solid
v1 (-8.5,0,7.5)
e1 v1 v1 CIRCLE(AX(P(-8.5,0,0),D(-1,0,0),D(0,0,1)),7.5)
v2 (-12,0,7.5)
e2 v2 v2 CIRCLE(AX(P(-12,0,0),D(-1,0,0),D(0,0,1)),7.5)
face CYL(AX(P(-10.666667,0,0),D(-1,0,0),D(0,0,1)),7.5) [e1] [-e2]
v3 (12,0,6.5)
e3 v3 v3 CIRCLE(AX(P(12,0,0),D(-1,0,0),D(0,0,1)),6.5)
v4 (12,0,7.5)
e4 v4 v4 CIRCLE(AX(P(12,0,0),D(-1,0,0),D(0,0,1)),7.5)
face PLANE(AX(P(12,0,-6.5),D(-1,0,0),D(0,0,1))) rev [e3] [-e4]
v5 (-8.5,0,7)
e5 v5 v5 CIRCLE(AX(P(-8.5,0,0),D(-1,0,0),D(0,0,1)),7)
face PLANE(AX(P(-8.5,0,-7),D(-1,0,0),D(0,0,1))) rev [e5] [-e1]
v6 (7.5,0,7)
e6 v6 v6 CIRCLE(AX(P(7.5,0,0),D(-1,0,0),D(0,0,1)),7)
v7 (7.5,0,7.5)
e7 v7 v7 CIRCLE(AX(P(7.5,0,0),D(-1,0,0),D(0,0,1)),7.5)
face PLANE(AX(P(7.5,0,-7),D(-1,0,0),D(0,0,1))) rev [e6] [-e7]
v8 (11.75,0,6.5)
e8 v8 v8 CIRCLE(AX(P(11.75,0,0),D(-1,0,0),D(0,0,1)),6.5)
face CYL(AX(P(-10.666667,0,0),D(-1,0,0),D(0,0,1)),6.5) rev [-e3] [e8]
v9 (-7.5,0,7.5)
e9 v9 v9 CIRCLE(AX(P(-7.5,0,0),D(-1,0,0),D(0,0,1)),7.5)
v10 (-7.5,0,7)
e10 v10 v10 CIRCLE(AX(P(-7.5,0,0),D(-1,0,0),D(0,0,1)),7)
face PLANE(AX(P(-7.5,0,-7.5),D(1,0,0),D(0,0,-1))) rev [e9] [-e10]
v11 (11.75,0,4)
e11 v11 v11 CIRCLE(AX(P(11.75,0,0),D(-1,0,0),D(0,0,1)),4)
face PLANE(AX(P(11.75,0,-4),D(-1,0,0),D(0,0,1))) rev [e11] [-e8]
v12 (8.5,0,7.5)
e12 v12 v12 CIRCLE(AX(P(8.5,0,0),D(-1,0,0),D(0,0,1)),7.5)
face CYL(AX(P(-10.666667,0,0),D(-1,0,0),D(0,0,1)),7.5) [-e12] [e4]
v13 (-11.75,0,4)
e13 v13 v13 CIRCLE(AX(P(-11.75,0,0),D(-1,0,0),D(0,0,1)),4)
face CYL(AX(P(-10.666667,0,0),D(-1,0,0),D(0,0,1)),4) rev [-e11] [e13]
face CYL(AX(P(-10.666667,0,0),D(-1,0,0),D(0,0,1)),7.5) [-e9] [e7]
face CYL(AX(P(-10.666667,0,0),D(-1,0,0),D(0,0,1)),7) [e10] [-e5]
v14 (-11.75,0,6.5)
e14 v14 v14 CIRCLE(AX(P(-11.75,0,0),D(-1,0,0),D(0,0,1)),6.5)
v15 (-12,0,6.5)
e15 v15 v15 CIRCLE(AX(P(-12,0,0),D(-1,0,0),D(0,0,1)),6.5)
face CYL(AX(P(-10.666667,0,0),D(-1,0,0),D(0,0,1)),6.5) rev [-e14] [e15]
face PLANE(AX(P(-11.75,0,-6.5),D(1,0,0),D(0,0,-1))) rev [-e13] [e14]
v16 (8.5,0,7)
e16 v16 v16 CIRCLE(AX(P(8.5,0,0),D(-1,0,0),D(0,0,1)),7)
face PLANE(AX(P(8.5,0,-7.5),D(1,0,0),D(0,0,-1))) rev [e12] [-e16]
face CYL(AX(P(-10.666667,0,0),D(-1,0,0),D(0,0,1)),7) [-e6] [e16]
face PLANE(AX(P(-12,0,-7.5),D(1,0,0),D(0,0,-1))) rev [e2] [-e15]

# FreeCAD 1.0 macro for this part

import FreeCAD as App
import Part
import Sketcher


def add_polygon(sketch, points):
    """Adds a closed chain of lines whose ends are joined by coincident constraints."""
    first, n = sketch.GeometryCount, len(points)
    for a, b in zip(points, points[1:] + points[:1]):
        sketch.addGeometry(Part.LineSegment(App.Vector(*a, 0), App.Vector(*b, 0)), False)
    for i in range(n):
        sketch.addConstraint(Sketcher.Constraint("Coincident", first + i, 2, first + (i + 1) % n, 1))

doc = App.newDocument("Part")
body = doc.addObject("PartDesign::Body", "Body")

sketch1 = body.newObject("Sketcher::SketchObject", "Sketch")
sketch1.AttachmentSupport = (doc.getObject("XZ_Plane"), [""])
sketch1.MapMode = "FlatFace"
add_polygon(sketch1, [(-11.75, -4), (11.75, -4), (11.75, -6.5), (12, -6.5), (12, -7.5), (8.5, -7.5), (8.5, -7), (7.5, -7), (7.5, -7.5), (-7.5, -7.5), (-7.5, -7), (-8.5, -7), (-8.5, -7.5), (-12, -7.5), (-12, -6.5), (-11.75, -6.5)])
sketch1.addConstraint(Sketcher.Constraint("Horizontal", 0))
sketch1.addConstraint(Sketcher.Constraint("Vertical", 1))
sketch1.addConstraint(Sketcher.Constraint("Horizontal", 2))
sketch1.addConstraint(Sketcher.Constraint("Vertical", 3))
sketch1.addConstraint(Sketcher.Constraint("Horizontal", 4))
sketch1.addConstraint(Sketcher.Constraint("Vertical", 5))
sketch1.addConstraint(Sketcher.Constraint("Horizontal", 6))
sketch1.addConstraint(Sketcher.Constraint("Vertical", 7))
sketch1.addConstraint(Sketcher.Constraint("Horizontal", 8))
sketch1.addConstraint(Sketcher.Constraint("Vertical", 9))
sketch1.addConstraint(Sketcher.Constraint("Horizontal", 10))
sketch1.addConstraint(Sketcher.Constraint("Vertical", 11))
sketch1.addConstraint(Sketcher.Constraint("Horizontal", 12))
sketch1.addConstraint(Sketcher.Constraint("Vertical", 13))
sketch1.addConstraint(Sketcher.Constraint("Horizontal", 14))
sketch1.addConstraint(Sketcher.Constraint("Vertical", 15))
sketch1.addConstraint(Sketcher.Constraint("Symmetric", 6, 2, 9, 2, -2))
sketch1.addConstraint(Sketcher.Constraint("Symmetric", 4, 2, 11, 2, -2))
sketch1.addConstraint(Sketcher.Constraint("Symmetric", 2, 2, 13, 2, -2))
sketch1.addConstraint(Sketcher.Constraint("Horizontal", 4, 2, 7, 2))
sketch1.addConstraint(Sketcher.Constraint("Equal", 2, 14))
sketch1.addConstraint(Sketcher.Constraint("Equal", 10, 3))
sketch1.addConstraint(Sketcher.Constraint("DistanceX", 6, 2, 6, 1, 1.0))
sketch1.addConstraint(Sketcher.Constraint("DistanceX", 8, 2, 8, 1, 15.0))
sketch1.addConstraint(Sketcher.Constraint("DistanceX", 0, 1, 0, 2, 23.5))
sketch1.addConstraint(Sketcher.Constraint("DistanceX", 4, 2, 4, 1, 3.5))
sketch1.addConstraint(Sketcher.Constraint("DistanceY", 1, 2, 1, 1, 2.5))
sketch1.addConstraint(Sketcher.Constraint("DistanceY", 5, 1, 5, 2, 0.5))
sketch1.addConstraint(Sketcher.Constraint("DistanceY", 0, 2, -1, 1, 4.0))
revolution = body.newObject("PartDesign::Revolution", "Revolution")
revolution.Profile = sketch1
revolution.ReferenceAxis = (sketch1, ["H_Axis"])
revolution.Angle = 360

doc.recompute()
